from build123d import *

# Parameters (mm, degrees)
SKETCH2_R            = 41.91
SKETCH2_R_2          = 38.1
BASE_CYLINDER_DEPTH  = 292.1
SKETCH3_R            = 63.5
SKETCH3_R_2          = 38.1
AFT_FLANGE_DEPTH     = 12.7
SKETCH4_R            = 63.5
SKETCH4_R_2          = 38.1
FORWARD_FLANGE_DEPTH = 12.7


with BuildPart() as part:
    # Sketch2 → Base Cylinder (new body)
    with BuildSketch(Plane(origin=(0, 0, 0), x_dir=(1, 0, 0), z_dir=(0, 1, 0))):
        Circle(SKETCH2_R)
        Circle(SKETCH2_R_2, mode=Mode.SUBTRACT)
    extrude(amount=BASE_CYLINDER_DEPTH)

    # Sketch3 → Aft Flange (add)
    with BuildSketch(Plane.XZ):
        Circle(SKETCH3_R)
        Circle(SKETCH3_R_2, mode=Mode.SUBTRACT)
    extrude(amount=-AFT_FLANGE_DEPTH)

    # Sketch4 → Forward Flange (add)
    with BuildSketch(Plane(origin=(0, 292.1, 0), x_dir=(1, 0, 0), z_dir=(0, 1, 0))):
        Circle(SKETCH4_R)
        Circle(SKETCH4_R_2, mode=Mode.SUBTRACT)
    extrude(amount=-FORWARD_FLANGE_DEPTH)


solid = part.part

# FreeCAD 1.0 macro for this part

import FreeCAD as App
import Part
import Sketcher
from FreeCAD import Vector
Q = App.Units.Quantity

doc = App.newDocument("Part")
body = doc.addObject("PartDesign::Body", "Body")

# Sketch on XZ plane
sketch1 = body.newObject("Sketcher::SketchObject", "Sketch")
sketch1.AttachmentSupport = (doc.getObject("XZ_Plane"), [""])
sketch1.MapMode = "FlatFace"
sketch1.addGeometry([
    Part.Circle(Vector(0, 0, 0), Vector(0, 0, 1), 42),
    Part.Circle(Vector(0, 0, 0), Vector(0, 0, 1), 38),
], False)
sketch1.addConstraint([
    Sketcher.Constraint("Coincident", 0, 3, -1, 1),
    Sketcher.Constraint("Coincident", 1, 3, -1, 1),
    Sketcher.Constraint("Diameter", 1, Q("3 in")),
    Sketcher.Constraint("Diameter", 0, Q("3.3 in")),
])
pad1 = body.newObject("PartDesign::Pad", "Pad")
pad1.Profile = sketch1
pad1.Length = Q("11.5 in")
pad1.Reversed = True

# Sketch on XZ plane
sketch2 = body.newObject("Sketcher::SketchObject", "Sketch001")
sketch2.AttachmentSupport = (doc.getObject("XZ_Plane"), [""])
sketch2.MapMode = "FlatFace"
sketch2.addGeometry([
    Part.Circle(Vector(0, 0, 0), Vector(0, 0, 1), 64),
    Part.Circle(Vector(0, 0, 0), Vector(0, 0, 1), 38),
], False)
sketch2.addConstraint([
    Sketcher.Constraint("Coincident", 0, 3, -1, 1),
    Sketcher.Constraint("Coincident", 1, 3, -1, 1),
    Sketcher.Constraint("Diameter", 0, Q("5 in")),
    Sketcher.Constraint("Diameter", 1, Q("3 in")),
])
pad2 = body.newObject("PartDesign::Pad", "Pad001")
pad2.Profile = sketch2
pad2.Length = Q("0.5 in")
pad2.Reversed = True

# Sketch on XZ plane
sketch3 = body.newObject("Sketcher::SketchObject", "Sketch002")
sketch3.AttachmentSupport = (doc.getObject("XZ_Plane"), [""])
sketch3.MapMode = "FlatFace"
sketch3.AttachmentOffset = App.Placement(Vector(0, 0, -11.5 * 25.4), App.Rotation())
sketch3.addGeometry([
    Part.Circle(Vector(0, 0, 0), Vector(0, 0, 1), 64),
    Part.Circle(Vector(0, 0, 0), Vector(0, 0, 1), 38),
], False)
sketch3.addConstraint([
    Sketcher.Constraint("Coincident", 0, 3, -1, 1),
    Sketcher.Constraint("Coincident", 1, 3, -1, 1),
    Sketcher.Constraint("Diameter", 0, Q("5 in")),
    Sketcher.Constraint("Diameter", 1, Q("3 in")),
])
pad3 = body.newObject("PartDesign::Pad", "Pad002")
pad3.Profile = sketch3
pad3.Length = Q("0.5 in")

doc.recompute()
